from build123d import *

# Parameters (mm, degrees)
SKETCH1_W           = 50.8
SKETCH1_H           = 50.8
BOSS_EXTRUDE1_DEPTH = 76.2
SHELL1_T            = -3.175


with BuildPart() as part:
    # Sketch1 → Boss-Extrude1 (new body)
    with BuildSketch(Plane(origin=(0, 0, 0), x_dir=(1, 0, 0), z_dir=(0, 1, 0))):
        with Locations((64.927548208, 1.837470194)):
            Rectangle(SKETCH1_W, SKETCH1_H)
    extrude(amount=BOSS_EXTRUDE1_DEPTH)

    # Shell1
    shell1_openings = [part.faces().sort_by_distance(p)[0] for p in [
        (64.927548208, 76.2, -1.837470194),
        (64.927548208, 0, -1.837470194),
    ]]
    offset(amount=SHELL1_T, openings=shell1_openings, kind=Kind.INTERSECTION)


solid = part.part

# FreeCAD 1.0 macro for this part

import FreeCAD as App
import Part
import Sketcher

V = App.Vector
Q = App.Units.Quantity


def faces_at(feature, points):
    """Names of the faces that lie closest to the given points."""
    faces = feature.Shape.Faces
    near = lambda p: min(range(len(faces)), key=lambda i: faces[i].distToShape(Part.Vertex(*p))[0])
    return sorted({f"Face{near(p) + 1}" for p in points})


def add_polygon(sketch, points):
    """Adds a closed chain of lines whose ends are joined by coincident constraints."""
    first, n = sketch.GeometryCount, len(points)
    for a, b in zip(points, points[1:] + points[:1]):
        sketch.addGeometry(Part.LineSegment(App.Vector(*a, 0), App.Vector(*b, 0)), False)
    for i in range(n):
        sketch.addConstraint(Sketcher.Constraint("Coincident", first + i, 2, first + (i + 1) % n, 1))

doc = App.newDocument("Part")
body = doc.addObject("PartDesign::Body", "Body")

# Sketch on XZ plane
sketch1 = body.newObject("Sketcher::SketchObject", "Sketch")
sketch1.AttachmentSupport = (doc.getObject("XZ_Plane"), [""])
sketch1.MapMode = "FlatFace"
add_polygon(sketch1, [(40, -27), (40, 24), (90, 24), (90, -27)])  # lines 0-3
sketch1.addConstraint([
    Sketcher.Constraint("Vertical", 0),
    Sketcher.Constraint("Horizontal", 1),
    Sketcher.Constraint("Vertical", 2),
    Sketcher.Constraint("Horizontal", 3),
    Sketcher.Constraint("Equal", 3, 0),
    Sketcher.Constraint("DistanceX", 1, 1, 1, 2, Q("2 in")),
    Sketcher.Constraint("DistanceX", -1, 1, 0, 2, 39.527548),
    Sketcher.Constraint("DistanceY", -1, 1, 0, 2, 23.56253),
])
pad1 = body.newObject("PartDesign::Pad", "Pad")
pad1.Profile = sketch1
pad1.Length = Q("3 in")
pad1.Reversed = True
doc.recompute()

thickness = body.newObject("PartDesign::Thickness", "Thickness")
thickness.Base = (pad1, faces_at(pad1, [(64.928, 76.2, -1.837), (64.928, 0, -1.837)]))
thickness.Value = Q("0.125 in")
thickness.Reversed = True
thickness.Join = "Intersection"

doc.recompute()
